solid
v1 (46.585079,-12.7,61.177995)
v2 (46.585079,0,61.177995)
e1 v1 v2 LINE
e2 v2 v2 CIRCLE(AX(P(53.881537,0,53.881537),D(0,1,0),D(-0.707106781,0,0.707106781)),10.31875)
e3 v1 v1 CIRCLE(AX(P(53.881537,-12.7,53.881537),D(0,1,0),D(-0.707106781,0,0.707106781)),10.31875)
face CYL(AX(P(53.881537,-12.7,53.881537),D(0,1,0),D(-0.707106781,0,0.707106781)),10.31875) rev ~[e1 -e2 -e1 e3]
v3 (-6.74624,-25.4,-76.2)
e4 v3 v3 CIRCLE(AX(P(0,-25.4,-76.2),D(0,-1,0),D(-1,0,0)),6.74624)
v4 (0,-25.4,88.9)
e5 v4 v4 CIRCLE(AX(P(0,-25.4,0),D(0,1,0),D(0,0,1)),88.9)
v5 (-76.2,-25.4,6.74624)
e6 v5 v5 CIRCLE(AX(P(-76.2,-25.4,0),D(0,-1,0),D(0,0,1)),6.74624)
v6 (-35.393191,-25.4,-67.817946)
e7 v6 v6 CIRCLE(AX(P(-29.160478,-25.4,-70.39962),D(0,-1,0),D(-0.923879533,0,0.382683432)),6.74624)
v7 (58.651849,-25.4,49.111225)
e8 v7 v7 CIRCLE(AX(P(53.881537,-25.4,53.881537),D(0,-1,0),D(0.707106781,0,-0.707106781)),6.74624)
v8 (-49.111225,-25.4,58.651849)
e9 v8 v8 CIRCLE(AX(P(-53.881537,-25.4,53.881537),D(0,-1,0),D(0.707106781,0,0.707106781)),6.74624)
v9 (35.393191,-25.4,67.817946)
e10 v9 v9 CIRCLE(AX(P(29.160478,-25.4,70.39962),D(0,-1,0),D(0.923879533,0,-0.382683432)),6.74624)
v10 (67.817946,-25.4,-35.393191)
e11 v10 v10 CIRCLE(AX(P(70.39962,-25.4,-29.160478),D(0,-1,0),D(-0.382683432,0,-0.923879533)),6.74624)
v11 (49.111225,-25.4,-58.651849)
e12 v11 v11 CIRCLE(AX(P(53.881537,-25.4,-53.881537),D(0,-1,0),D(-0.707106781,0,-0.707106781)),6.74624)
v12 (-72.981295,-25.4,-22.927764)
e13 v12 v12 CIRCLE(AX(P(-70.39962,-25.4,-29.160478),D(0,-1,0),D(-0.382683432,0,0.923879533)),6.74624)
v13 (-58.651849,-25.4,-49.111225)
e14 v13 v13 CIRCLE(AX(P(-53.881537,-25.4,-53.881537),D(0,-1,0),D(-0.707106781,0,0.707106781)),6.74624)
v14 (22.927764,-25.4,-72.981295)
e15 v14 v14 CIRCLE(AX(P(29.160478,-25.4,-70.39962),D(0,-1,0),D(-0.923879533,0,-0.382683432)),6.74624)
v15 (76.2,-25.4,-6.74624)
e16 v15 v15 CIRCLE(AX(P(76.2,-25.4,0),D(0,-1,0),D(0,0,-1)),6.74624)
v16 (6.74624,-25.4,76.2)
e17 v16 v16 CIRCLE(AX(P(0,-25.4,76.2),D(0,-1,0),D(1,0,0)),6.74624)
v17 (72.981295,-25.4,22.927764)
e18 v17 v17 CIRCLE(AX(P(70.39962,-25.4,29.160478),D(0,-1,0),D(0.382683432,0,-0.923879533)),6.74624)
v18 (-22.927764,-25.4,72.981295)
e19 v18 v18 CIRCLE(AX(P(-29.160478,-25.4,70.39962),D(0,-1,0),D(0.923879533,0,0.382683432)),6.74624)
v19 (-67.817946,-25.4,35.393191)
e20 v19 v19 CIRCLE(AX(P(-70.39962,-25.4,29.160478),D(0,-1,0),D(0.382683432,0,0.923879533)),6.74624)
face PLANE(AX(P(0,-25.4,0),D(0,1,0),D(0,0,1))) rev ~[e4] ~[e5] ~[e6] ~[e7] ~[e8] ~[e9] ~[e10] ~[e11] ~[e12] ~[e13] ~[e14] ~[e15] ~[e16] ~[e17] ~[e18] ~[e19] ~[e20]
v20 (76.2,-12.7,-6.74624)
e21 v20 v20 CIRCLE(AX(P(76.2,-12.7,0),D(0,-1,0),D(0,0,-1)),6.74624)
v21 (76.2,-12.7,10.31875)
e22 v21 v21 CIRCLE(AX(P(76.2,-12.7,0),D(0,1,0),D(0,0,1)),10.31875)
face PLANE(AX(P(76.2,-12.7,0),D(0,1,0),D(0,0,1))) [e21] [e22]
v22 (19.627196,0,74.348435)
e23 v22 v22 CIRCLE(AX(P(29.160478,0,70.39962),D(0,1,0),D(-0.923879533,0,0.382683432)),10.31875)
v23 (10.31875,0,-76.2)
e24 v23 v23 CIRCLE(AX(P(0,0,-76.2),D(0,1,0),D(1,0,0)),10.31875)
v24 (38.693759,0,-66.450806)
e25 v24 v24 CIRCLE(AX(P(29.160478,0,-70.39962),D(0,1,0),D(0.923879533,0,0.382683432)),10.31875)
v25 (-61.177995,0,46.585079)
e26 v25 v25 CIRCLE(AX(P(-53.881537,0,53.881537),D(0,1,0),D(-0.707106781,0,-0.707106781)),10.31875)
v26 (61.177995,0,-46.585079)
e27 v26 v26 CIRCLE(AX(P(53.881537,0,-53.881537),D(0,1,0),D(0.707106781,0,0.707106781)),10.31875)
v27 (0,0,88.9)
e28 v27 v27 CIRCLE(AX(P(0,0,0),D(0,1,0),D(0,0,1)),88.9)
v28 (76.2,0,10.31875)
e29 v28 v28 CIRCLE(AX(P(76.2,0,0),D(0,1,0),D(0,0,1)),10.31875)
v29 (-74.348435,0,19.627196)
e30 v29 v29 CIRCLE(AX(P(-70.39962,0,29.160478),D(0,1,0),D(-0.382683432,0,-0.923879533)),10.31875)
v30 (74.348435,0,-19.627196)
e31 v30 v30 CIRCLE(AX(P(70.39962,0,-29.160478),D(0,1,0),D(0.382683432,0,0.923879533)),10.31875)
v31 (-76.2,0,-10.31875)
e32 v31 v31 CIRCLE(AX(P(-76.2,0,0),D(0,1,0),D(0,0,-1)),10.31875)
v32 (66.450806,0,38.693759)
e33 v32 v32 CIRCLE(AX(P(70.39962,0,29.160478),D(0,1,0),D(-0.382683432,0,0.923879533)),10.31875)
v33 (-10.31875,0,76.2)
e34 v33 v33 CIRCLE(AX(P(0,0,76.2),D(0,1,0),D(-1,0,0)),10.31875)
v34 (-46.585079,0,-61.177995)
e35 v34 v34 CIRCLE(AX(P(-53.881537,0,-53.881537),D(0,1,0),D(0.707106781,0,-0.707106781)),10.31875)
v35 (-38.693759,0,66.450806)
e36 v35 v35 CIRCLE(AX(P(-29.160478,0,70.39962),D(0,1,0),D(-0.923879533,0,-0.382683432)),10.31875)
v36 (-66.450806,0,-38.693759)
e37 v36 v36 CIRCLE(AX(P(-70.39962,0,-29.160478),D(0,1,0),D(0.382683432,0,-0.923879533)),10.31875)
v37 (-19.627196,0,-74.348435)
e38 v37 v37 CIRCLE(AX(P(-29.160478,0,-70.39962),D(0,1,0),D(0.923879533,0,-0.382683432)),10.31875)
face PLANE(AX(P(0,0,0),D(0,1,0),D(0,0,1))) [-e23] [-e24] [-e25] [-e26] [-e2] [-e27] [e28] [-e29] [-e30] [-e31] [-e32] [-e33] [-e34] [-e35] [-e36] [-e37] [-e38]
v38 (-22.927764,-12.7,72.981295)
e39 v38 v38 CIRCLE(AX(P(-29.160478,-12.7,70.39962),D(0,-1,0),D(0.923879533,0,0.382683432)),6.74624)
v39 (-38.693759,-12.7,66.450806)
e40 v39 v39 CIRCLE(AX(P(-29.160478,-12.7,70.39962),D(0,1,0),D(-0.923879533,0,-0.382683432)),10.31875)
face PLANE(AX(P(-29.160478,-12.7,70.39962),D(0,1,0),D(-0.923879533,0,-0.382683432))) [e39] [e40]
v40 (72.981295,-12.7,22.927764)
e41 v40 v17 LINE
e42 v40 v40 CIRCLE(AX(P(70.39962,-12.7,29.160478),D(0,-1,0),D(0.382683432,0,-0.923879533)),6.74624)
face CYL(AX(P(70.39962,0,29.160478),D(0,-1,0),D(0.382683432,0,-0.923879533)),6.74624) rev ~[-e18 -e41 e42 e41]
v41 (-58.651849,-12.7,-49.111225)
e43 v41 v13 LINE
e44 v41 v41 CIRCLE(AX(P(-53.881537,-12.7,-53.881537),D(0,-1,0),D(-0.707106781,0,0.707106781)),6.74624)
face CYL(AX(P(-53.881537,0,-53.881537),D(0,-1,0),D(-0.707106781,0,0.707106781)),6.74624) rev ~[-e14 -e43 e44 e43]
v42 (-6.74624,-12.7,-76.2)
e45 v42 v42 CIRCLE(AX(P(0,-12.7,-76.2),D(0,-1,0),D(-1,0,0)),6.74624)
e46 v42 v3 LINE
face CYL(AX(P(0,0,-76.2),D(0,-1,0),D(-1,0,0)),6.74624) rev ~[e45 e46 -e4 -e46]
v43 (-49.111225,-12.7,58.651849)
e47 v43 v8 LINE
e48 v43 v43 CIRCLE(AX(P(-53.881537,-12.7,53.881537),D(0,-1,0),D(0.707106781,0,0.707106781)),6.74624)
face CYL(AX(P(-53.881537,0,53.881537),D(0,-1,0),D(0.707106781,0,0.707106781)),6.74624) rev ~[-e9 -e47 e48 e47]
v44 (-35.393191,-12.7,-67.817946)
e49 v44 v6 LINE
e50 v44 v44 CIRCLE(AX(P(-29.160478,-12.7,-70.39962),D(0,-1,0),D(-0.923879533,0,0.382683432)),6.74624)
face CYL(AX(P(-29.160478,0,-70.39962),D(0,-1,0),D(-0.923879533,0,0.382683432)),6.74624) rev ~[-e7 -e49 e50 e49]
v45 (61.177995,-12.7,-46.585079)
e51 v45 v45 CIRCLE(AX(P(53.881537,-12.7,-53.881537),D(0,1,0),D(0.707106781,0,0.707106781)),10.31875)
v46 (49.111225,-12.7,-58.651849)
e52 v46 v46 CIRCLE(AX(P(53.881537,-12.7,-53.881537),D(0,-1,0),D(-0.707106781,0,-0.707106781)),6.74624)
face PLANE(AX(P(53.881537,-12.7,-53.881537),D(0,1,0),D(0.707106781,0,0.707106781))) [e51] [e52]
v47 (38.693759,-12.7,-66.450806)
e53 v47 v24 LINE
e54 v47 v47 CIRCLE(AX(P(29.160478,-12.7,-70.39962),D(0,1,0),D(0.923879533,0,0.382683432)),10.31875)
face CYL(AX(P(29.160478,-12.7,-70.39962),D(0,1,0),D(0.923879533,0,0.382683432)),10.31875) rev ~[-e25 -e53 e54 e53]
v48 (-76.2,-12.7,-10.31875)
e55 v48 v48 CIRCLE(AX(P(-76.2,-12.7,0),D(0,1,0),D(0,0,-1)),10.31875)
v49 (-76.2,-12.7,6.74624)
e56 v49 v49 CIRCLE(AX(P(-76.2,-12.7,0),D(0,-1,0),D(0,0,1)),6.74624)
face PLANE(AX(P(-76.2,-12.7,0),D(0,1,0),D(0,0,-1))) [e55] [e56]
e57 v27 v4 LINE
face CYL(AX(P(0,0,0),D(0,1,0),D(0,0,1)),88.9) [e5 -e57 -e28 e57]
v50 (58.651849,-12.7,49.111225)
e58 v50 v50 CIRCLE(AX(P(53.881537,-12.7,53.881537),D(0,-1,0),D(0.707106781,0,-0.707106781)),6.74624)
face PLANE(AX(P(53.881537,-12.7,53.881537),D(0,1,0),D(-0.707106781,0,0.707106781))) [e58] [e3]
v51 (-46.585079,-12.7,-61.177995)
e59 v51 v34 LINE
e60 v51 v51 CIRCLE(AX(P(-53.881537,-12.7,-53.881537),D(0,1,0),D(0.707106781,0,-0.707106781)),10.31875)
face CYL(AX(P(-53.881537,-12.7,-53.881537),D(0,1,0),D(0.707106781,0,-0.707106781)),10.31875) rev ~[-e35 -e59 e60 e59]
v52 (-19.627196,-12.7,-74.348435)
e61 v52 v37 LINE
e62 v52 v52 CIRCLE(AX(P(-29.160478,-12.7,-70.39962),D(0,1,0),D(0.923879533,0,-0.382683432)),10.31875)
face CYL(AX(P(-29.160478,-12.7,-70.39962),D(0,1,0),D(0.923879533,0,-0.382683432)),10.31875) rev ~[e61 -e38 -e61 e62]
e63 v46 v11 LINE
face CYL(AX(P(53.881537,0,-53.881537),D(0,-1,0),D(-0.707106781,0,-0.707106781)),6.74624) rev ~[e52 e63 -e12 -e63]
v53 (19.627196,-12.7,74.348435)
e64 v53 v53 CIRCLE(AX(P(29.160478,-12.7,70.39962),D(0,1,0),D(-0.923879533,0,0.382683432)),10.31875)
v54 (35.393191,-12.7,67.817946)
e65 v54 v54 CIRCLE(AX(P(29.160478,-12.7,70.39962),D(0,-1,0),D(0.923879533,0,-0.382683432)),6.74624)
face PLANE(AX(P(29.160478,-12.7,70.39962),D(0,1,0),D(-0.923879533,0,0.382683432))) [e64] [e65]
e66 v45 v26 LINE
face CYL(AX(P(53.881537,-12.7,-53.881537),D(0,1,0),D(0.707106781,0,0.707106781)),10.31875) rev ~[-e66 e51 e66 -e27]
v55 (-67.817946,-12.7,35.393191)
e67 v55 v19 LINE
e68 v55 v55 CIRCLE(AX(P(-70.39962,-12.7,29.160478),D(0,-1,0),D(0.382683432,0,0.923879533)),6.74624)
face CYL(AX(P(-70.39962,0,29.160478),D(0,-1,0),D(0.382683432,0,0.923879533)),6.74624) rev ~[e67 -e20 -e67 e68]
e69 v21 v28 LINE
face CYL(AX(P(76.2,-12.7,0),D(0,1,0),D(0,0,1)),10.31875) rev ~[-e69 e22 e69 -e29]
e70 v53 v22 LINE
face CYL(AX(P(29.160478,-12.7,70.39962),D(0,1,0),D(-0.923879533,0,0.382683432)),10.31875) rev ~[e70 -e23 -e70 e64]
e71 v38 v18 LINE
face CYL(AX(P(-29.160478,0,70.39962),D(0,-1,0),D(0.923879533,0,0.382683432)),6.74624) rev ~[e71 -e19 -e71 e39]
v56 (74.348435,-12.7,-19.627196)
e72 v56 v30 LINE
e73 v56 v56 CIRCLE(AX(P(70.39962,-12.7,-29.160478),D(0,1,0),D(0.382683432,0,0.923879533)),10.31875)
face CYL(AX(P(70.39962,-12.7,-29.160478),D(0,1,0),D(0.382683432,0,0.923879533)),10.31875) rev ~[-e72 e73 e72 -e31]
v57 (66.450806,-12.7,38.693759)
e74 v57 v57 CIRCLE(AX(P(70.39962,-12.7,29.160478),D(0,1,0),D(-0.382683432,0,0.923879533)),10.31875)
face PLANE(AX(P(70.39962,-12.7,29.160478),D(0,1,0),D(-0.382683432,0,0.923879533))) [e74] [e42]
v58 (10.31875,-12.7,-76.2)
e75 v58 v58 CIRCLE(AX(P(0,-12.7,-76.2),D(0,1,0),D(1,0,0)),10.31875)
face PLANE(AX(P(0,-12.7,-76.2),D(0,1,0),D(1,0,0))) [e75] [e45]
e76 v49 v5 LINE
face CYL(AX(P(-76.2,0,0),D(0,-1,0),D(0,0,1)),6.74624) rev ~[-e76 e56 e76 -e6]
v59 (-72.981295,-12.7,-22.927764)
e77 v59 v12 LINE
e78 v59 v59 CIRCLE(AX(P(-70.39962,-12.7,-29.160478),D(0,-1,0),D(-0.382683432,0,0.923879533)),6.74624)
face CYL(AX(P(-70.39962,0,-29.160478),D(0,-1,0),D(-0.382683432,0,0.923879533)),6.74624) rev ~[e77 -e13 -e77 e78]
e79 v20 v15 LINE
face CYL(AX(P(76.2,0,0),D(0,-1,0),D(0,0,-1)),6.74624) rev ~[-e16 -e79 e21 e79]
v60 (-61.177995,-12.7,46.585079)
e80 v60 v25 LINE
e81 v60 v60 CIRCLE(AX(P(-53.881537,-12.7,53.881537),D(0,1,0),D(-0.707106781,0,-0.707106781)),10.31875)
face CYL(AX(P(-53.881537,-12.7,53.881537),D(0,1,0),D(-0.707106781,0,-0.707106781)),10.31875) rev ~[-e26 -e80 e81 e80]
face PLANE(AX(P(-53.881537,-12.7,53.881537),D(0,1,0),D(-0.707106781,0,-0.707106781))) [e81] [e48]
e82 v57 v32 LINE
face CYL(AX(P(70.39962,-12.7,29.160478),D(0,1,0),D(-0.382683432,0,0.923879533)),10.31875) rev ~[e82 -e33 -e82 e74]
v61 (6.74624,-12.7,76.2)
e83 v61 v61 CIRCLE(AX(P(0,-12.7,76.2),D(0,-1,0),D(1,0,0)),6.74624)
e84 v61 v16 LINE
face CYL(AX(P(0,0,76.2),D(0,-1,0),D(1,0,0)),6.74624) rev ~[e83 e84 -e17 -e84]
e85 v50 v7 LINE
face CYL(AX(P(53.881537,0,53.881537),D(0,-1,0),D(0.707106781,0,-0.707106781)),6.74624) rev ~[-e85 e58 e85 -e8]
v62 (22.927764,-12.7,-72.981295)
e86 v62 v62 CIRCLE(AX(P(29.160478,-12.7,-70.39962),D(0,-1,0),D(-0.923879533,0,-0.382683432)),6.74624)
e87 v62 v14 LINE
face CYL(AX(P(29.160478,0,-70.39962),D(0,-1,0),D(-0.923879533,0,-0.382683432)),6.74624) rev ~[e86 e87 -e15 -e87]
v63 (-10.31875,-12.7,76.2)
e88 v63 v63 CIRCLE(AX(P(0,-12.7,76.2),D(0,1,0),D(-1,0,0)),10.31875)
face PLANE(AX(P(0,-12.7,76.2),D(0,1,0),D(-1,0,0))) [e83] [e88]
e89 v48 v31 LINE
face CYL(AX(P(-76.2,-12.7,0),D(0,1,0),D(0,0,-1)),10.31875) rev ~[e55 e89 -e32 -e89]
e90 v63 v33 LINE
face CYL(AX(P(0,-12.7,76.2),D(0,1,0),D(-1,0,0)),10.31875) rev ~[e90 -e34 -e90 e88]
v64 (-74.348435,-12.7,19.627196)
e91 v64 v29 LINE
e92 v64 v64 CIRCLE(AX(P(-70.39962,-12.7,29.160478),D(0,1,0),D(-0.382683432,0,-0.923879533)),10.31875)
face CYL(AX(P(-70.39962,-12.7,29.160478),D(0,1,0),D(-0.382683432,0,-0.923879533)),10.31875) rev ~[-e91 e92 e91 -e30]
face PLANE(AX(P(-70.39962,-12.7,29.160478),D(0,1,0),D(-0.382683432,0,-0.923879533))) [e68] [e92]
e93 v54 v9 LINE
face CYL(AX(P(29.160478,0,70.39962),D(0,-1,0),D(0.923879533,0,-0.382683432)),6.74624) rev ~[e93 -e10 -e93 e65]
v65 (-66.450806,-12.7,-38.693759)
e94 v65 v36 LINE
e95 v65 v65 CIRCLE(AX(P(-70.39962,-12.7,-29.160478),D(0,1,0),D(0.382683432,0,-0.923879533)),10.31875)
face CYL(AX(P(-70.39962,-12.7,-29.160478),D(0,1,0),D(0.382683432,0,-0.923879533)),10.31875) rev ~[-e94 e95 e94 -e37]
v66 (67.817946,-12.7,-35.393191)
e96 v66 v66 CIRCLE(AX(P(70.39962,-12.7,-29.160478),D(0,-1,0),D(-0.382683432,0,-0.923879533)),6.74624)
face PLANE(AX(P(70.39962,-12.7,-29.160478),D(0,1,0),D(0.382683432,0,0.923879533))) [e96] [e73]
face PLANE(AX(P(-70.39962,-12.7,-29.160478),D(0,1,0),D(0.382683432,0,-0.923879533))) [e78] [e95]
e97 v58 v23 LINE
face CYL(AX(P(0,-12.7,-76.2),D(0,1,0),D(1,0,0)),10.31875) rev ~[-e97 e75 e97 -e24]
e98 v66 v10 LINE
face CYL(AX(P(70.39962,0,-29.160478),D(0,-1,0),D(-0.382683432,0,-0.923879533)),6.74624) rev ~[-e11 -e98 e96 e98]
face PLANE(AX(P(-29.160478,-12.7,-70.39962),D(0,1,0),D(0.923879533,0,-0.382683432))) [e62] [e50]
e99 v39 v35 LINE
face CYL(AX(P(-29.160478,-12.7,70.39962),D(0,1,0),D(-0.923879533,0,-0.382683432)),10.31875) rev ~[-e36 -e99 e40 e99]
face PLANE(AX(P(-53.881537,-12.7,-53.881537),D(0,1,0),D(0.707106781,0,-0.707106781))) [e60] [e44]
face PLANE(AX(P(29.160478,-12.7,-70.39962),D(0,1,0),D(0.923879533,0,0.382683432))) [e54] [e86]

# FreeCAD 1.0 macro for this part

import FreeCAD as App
import Part
import Sketcher
Q = App.Units.Quantity

doc = App.newDocument("Part")
body = doc.addObject("PartDesign::Body", "Body")

sketch1 = body.newObject("Sketcher::SketchObject", "Sketch")
sketch1.AttachmentSupport = (doc.getObject("XZ_Plane"), [""])
sketch1.MapMode = "FlatFace"
sketch1.addGeometry(Part.Circle(App.Vector(0, 0, 0), App.Vector(0, 0, 1), 88.9), False)
sketch1.addConstraint([
    Sketcher.Constraint("Coincident", 0, 3, -1, 1),
    Sketcher.Constraint("Diameter", 0, Q("7 in")),
])
pad1 = body.newObject("PartDesign::Pad", "Pad")
pad1.Profile = sketch1
pad1.Length = Q("1 in")

sketch2 = body.newObject("Sketcher::SketchObject", "Sketch001")
sketch2.AttachmentSupport = (doc.getObject("XZ_Plane"), [""])
sketch2.MapMode = "FlatFace"
sketch2.addGeometry(Part.Circle(App.Vector(0, -76.2, 0), App.Vector(0, 0, 1), 6.74624), False)
sketch2.addConstraint([
    Sketcher.Constraint("PointOnObject", 0, 3, -2),
    Sketcher.Constraint("DistanceY", 0, 3, -1, 1, Q("3 in")),
    Sketcher.Constraint("Diameter", 0, Q("0.5312 in")),
])
doc.recompute()
hole = body.newObject("PartDesign::Hole", "Hole")
hole.Profile = sketch2
hole.ThreadType = "None"
hole.Diameter = Q("0.5312 in")
hole.DepthType = "ThroughAll"
hole.HoleCutType = "Counterbore"
hole.HoleCutDiameter = Q("0.8125 in")
hole.HoleCutDepth = Q("0.5 in")
hole.Reversed = True
doc.recompute()

polarpattern = body.newObject("PartDesign::PolarPattern", "PolarPattern")
polarpattern.Originals = [hole]
polarpattern.Axis = (doc.getObject("Y_Axis"), [""])
polarpattern.Angle = 360
polarpattern.Occurrences = 16
body.Tip = polarpattern

doc.recompute()
